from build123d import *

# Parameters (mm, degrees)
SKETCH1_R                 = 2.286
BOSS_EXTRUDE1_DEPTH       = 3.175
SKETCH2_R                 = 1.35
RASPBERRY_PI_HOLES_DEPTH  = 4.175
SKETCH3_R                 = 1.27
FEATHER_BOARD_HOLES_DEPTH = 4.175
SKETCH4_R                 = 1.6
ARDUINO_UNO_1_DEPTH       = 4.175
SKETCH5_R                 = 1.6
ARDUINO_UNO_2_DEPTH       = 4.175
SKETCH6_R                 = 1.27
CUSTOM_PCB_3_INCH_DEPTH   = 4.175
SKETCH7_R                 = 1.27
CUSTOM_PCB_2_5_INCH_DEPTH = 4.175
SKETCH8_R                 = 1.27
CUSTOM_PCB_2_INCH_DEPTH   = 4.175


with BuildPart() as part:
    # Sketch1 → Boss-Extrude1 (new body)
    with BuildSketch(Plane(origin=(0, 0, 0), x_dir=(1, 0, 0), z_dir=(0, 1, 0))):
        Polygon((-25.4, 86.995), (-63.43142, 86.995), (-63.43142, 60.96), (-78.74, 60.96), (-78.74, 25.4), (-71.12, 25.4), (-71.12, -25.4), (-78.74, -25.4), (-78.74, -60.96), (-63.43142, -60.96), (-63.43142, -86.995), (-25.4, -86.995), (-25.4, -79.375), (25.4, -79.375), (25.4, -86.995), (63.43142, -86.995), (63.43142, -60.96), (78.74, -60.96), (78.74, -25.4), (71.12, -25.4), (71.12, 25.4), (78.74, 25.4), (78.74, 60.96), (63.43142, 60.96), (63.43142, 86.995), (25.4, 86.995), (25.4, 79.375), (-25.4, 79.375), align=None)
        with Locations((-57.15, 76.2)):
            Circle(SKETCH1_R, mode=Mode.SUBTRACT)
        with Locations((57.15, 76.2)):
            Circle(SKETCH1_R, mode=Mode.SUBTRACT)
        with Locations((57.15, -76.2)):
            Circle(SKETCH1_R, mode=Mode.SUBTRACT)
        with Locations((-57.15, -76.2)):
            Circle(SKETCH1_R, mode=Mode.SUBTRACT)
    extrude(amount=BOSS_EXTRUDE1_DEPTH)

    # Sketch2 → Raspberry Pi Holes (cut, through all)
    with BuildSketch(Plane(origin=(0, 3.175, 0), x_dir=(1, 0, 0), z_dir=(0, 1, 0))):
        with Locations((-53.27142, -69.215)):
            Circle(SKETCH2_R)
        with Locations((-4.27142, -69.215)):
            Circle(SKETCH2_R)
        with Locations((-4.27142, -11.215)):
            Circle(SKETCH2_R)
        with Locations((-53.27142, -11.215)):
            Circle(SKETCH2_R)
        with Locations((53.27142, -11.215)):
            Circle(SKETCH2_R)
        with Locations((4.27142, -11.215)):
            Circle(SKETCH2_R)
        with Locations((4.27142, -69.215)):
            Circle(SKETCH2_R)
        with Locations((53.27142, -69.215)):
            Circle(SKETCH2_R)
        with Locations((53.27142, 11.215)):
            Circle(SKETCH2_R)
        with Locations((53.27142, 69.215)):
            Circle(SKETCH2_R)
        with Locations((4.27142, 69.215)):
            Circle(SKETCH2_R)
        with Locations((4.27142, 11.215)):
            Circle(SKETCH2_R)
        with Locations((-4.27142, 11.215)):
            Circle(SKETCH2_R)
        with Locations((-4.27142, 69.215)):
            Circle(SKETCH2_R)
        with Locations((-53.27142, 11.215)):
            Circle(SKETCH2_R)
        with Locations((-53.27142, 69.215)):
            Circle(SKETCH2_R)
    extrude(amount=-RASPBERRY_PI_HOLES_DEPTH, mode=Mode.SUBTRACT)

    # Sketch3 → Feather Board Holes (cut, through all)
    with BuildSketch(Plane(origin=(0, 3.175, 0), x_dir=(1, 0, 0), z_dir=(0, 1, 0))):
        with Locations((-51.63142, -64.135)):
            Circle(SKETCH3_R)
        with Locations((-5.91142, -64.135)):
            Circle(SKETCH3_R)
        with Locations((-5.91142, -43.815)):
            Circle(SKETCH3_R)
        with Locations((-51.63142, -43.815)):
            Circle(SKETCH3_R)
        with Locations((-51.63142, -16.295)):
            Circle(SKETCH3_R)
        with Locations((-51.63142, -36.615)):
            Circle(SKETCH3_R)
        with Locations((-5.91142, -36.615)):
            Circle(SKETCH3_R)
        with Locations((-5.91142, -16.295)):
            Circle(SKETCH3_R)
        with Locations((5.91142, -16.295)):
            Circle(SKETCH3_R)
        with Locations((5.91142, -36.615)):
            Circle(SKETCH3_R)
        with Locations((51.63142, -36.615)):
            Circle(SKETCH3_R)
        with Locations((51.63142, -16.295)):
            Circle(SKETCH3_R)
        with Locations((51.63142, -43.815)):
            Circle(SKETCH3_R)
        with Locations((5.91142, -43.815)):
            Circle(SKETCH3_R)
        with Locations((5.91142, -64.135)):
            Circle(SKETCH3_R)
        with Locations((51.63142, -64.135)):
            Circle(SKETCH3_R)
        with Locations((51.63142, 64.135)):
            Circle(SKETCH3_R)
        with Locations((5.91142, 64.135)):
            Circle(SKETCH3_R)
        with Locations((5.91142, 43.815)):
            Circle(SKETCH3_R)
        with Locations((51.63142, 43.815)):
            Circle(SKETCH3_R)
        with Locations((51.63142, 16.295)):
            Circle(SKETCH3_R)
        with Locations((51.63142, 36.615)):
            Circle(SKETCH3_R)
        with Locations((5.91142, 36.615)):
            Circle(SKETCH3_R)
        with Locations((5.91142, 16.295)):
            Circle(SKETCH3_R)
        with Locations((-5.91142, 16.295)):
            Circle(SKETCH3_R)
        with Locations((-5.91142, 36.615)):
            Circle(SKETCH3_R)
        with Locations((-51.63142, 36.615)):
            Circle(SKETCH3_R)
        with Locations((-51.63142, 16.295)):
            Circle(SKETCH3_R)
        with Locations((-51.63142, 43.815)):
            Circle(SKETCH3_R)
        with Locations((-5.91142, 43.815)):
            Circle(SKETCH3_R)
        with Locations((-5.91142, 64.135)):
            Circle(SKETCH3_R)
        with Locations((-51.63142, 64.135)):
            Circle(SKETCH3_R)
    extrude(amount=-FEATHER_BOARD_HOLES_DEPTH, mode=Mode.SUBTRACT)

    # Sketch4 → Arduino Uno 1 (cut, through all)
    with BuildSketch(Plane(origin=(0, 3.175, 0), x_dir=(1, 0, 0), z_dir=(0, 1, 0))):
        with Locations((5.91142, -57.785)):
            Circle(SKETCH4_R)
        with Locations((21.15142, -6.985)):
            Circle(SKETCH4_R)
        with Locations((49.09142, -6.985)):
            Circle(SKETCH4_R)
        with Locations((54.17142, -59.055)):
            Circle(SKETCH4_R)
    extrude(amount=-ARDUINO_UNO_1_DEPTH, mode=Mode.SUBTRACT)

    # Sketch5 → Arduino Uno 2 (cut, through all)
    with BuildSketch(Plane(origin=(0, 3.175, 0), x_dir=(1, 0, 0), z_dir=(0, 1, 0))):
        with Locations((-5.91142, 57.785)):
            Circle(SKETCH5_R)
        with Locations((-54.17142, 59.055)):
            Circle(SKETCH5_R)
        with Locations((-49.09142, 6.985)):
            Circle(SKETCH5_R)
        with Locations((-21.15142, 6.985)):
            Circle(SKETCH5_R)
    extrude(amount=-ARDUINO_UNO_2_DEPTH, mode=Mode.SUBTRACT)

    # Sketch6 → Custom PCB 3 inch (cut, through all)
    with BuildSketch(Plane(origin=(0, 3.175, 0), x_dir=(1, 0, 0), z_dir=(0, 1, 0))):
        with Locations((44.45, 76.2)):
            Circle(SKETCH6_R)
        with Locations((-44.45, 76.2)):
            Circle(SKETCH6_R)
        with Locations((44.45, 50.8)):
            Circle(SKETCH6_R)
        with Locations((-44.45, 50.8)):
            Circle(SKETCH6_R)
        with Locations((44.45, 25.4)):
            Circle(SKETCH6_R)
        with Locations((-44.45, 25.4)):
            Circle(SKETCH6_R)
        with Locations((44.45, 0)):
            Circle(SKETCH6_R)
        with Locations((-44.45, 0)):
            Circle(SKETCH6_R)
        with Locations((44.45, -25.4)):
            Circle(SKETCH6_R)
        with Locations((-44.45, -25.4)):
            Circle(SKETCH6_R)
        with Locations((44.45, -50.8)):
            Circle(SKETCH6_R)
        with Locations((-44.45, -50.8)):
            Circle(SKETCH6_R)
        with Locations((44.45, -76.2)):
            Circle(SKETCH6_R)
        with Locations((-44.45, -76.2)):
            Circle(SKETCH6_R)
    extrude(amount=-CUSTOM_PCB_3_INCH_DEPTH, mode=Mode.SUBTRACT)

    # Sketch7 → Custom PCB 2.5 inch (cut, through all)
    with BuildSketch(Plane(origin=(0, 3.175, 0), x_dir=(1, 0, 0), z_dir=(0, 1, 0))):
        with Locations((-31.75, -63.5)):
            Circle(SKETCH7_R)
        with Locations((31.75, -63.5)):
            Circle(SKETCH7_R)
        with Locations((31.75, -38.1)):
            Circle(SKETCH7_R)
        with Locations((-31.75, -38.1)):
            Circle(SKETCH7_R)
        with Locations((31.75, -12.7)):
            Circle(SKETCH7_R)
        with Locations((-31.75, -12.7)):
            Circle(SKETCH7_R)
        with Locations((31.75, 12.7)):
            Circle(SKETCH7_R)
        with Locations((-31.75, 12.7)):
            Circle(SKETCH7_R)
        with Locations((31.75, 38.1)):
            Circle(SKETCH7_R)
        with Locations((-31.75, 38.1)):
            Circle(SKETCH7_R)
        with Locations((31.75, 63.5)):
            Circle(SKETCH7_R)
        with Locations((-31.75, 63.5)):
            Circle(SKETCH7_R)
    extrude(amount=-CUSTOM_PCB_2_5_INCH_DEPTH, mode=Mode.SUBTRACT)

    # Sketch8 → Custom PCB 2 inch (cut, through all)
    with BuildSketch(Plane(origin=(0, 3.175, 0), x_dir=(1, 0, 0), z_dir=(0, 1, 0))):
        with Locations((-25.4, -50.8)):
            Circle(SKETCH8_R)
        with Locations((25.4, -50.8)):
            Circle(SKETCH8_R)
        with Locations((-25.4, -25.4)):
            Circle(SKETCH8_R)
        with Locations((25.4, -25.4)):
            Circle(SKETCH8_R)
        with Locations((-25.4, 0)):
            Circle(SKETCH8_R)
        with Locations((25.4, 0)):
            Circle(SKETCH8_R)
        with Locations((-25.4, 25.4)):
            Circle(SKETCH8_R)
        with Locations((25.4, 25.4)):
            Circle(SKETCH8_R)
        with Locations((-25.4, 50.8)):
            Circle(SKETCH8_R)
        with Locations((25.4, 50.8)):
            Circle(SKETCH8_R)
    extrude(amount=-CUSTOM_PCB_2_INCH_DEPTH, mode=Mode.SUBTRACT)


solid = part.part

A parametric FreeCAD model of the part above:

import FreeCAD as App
import Part
import Sketcher

V = App.Vector
Q = App.Units.Quantity


def add_polygon(sketch, points):
    """Adds a closed chain of lines whose ends are joined by coincident constraints."""
    first, n = sketch.GeometryCount, len(points)
    for a, b in zip(points, points[1:] + points[:1]):
        sketch.addGeometry(Part.LineSegment(App.Vector(*a, 0), App.Vector(*b, 0)), False)
    for i in range(n):
        sketch.addConstraint(Sketcher.Constraint("Coincident", first + i, 2, first + (i + 1) % n, 1))

doc = App.newDocument("Part")
body = doc.addObject("PartDesign::Body", "Body")

# Sketch on XZ plane
sketch1 = body.newObject("Sketcher::SketchObject", "Sketch")
sketch1.AttachmentSupport = (doc.getObject("XZ_Plane"), [""])
sketch1.MapMode = "FlatFace"
add_polygon(sketch1, [(-25.4, -86.995), (-63.43142, -86.995), (-63.43142, -60.96), (-78.74, -60.96), (-78.74, -25.4), (-71.12, -25.4), (-71.12, 25.4), (-78.74, 25.4), (-78.74, 60.96), (-63.43142, 60.96), (-63.43142, 86.995), (-25.4, 86.995), (-25.4, 79.375), (25.4, 79.375), (25.4, 86.995), (63.43142, 86.995), (63.43142, 60.96), (78.74, 60.96), (78.74, 25.4), (71.12, 25.4), (71.12, -25.4), (78.74, -25.4), (78.74, -60.96), (63.43142, -60.96), (63.43142, -86.995), (25.4, -86.995), (25.4, -79.375), (-25.4, -79.375)])  # lines 0-27
sketch1.addGeometry(Part.Circle(V(-57.15, 76.2, 0), V(0, 0, 1), 2.286), False)  # 28
sketch1.addGeometry(Part.Circle(V(57.15, 76.2, 0), V(0, 0, 1), 2.286), False)  # 29
sketch1.addGeometry(Part.Circle(V(-57.15, -76.2, 0), V(0, 0, 1), 2.286), False)  # 30
sketch1.addGeometry(Part.Circle(V(57.15, -76.2, 0), V(0, 0, 1), 2.286), False)  # 31
sketch1.addConstraint(Sketcher.Constraint("Horizontal", 0))
sketch1.addConstraint(Sketcher.Constraint("Vertical", 1))
sketch1.addConstraint(Sketcher.Constraint("Horizontal", 2))
sketch1.addConstraint(Sketcher.Constraint("Vertical", 3))
sketch1.addConstraint(Sketcher.Constraint("Horizontal", 4))
sketch1.addConstraint(Sketcher.Constraint("Vertical", 5))
sketch1.addConstraint(Sketcher.Constraint("Horizontal", 6))
sketch1.addConstraint(Sketcher.Constraint("Vertical", 7))
sketch1.addConstraint(Sketcher.Constraint("Horizontal", 8))
sketch1.addConstraint(Sketcher.Constraint("Vertical", 9))
sketch1.addConstraint(Sketcher.Constraint("Horizontal", 10))
sketch1.addConstraint(Sketcher.Constraint("Vertical", 11))
sketch1.addConstraint(Sketcher.Constraint("Horizontal", 12))
sketch1.addConstraint(Sketcher.Constraint("Vertical", 13))
sketch1.addConstraint(Sketcher.Constraint("Horizontal", 14))
sketch1.addConstraint(Sketcher.Constraint("Vertical", 15))
sketch1.addConstraint(Sketcher.Constraint("Horizontal", 16))
sketch1.addConstraint(Sketcher.Constraint("Vertical", 17))
sketch1.addConstraint(Sketcher.Constraint("Horizontal", 18))
sketch1.addConstraint(Sketcher.Constraint("Vertical", 19))
sketch1.addConstraint(Sketcher.Constraint("Horizontal", 20))
sketch1.addConstraint(Sketcher.Constraint("Vertical", 21))
sketch1.addConstraint(Sketcher.Constraint("Horizontal", 22))
sketch1.addConstraint(Sketcher.Constraint("Vertical", 23))
sketch1.addConstraint(Sketcher.Constraint("Horizontal", 24))
sketch1.addConstraint(Sketcher.Constraint("Vertical", 25))
sketch1.addConstraint(Sketcher.Constraint("Horizontal", 26))
sketch1.addConstraint(Sketcher.Constraint("Vertical", 27))
sketch1.addConstraint(Sketcher.Constraint("Equal", 28, 29))
sketch1.addConstraint(Sketcher.Constraint("Equal", 29, 30))
sketch1.addConstraint(Sketcher.Constraint("Equal", 30, 31))
sketch1.addConstraint(Sketcher.Constraint("Symmetric", 29, 3, 30, 3, -1, 1))
sketch1.addConstraint(Sketcher.Constraint("Symmetric", 28, 3, 31, 3, -1, 1))
sketch1.addConstraint(Sketcher.Constraint("Symmetric", 0, 2, 14, 2, -1, 1))
sketch1.addConstraint(Sketcher.Constraint("Symmetric", 2, 2, 16, 2, -1, 1))
sketch1.addConstraint(Sketcher.Constraint("Symmetric", 4, 2, 18, 2, -1, 1))
sketch1.addConstraint(Sketcher.Constraint("Symmetric", 6, 2, 20, 2, -1, 1))
sketch1.addConstraint(Sketcher.Constraint("Symmetric", 8, 2, 22, 2, -1, 1))
sketch1.addConstraint(Sketcher.Constraint("Symmetric", 10, 2, 24, 2, -1, 1))
sketch1.addConstraint(Sketcher.Constraint("Symmetric", 12, 2, 26, 2, -1, 1))
sketch1.addConstraint(Sketcher.Constraint("Symmetric", 28, 3, 29, 3, -2))
sketch1.addConstraint(Sketcher.Constraint("Symmetric", 10, 2, 13, 2, -2))
sketch1.addConstraint(Sketcher.Constraint("Symmetric", 8, 2, 15, 2, -2))
sketch1.addConstraint(Sketcher.Constraint("Symmetric", 6, 2, 17, 2, -2))
sketch1.addConstraint(Sketcher.Constraint("Equal", 26, 5))
sketch1.addConstraint(Sketcher.Constraint("Equal", 20, 11))
sketch1.addConstraint(Sketcher.Constraint("Diameter", 28, Q("0.18 in")))
sketch1.addConstraint(Sketcher.Constraint("DistanceX", 12, 1, 12, 2, Q("2 in")))
sketch1.addConstraint(Sketcher.Constraint("DistanceX", 4, 1, 4, 2, Q("0.3 in")))
sketch1.addConstraint(Sketcher.Constraint("DistanceY", 3, 1, 3, 2, Q("1.4 in")))
sketch1.addConstraint(Sketcher.Constraint("DistanceY", -1, 1, 28, 3, Q("3 in")))
sketch1.addConstraint(Sketcher.Constraint("DistanceX", 2, 2, -1, 1, Q("3.1 in")))
sketch1.addConstraint(Sketcher.Constraint("DistanceX", 28, 3, 29, 3, Q("4.5 in")))
sketch1.addConstraint(Sketcher.Constraint("DistanceY", 1, 1, 1, 2, Q("1.025 in")))
sketch1.addConstraint(Sketcher.Constraint("DistanceX", 0, 2, 0, 1, Q("1.4973 in")))
pad1 = body.newObject("PartDesign::Pad", "Pad")
pad1.Profile = sketch1
pad1.Length = Q("0.125 in")
pad1.Reversed = True

# Sketch on XZ plane
sketch2 = body.newObject("Sketcher::SketchObject", "Sketch001")
sketch2.AttachmentSupport = (doc.getObject("XZ_Plane"), [""])
sketch2.MapMode = "FlatFace"
sketch2.AttachmentOffset = App.Placement(V(0, 0, -0.125 * 25.4), App.Rotation())
sketch2.addGeometry(Part.Circle(V(-53.27142, 69.215, 0), V(0, 0, 1), 1.35), False)
sketch2.addGeometry(Part.Circle(V(-4.27142, 69.215, 0), V(0, 0, 1), 1.35), False)
sketch2.addGeometry(Part.Circle(V(-4.27142, 11.215, 0), V(0, 0, 1), 1.35), False)
sketch2.addGeometry(Part.Circle(V(-53.27142, 11.215, 0), V(0, 0, 1), 1.35), False)
sketch2.addGeometry(Part.Circle(V(53.27142, 11.215, 0), V(0, 0, 1), 1.35), False)
sketch2.addGeometry(Part.Circle(V(4.27142, 11.215, 0), V(0, 0, 1), 1.35), False)
sketch2.addGeometry(Part.Circle(V(4.27142, 69.215, 0), V(0, 0, 1), 1.35), False)
sketch2.addGeometry(Part.Circle(V(53.27142, 69.215, 0), V(0, 0, 1), 1.35), False)
sketch2.addGeometry(Part.Circle(V(53.27142, -11.215, 0), V(0, 0, 1), 1.35), False)
sketch2.addGeometry(Part.Circle(V(53.27142, -69.215, 0), V(0, 0, 1), 1.35), False)
sketch2.addGeometry(Part.Circle(V(4.27142, -69.215, 0), V(0, 0, 1), 1.35), False)
sketch2.addGeometry(Part.Circle(V(4.27142, -11.215, 0), V(0, 0, 1), 1.35), False)
sketch2.addGeometry(Part.Circle(V(-4.27142, -11.215, 0), V(0, 0, 1), 1.35), False)
sketch2.addGeometry(Part.Circle(V(-4.27142, -69.215, 0), V(0, 0, 1), 1.35), False)
sketch2.addGeometry(Part.Circle(V(-53.27142, -11.215, 0), V(0, 0, 1), 1.35), False)
sketch2.addGeometry(Part.Circle(V(-53.27142, -69.215, 0), V(0, 0, 1), 1.35), False)
sketch2.addConstraint(Sketcher.Constraint("Equal", 0, 1))
sketch2.addConstraint(Sketcher.Constraint("Equal", 1, 2))
sketch2.addConstraint(Sketcher.Constraint("Equal", 2, 3))
sketch2.addConstraint(Sketcher.Constraint("Equal", 3, 4))
sketch2.addConstraint(Sketcher.Constraint("Equal", 4, 5))
sketch2.addConstraint(Sketcher.Constraint("Equal", 5, 6))
sketch2.addConstraint(Sketcher.Constraint("Equal", 6, 7))
sketch2.addConstraint(Sketcher.Constraint("Equal", 7, 8))
sketch2.addConstraint(Sketcher.Constraint("Equal", 8, 9))
sketch2.addConstraint(Sketcher.Constraint("Equal", 9, 10))
sketch2.addConstraint(Sketcher.Constraint("Equal", 10, 11))
sketch2.addConstraint(Sketcher.Constraint("Equal", 11, 12))
sketch2.addConstraint(Sketcher.Constraint("Equal", 12, 13))
sketch2.addConstraint(Sketcher.Constraint("Equal", 13, 14))
sketch2.addConstraint(Sketcher.Constraint("Equal", 14, 15))
sketch2.addConstraint(Sketcher.Constraint("Symmetric", 3, 3, 8, 3, -1, 1))
sketch2.addConstraint(Sketcher.Constraint("Symmetric", 0, 3, 9, 3, -1, 1))
sketch2.addConstraint(Sketcher.Constraint("Symmetric", 1, 3, 10, 3, -1, 1))
sketch2.addConstraint(Sketcher.Constraint("Symmetric", 2, 3, 11, 3, -1, 1))
sketch2.addConstraint(Sketcher.Constraint("Symmetric", 5, 3, 12, 3, -1, 1))
sketch2.addConstraint(Sketcher.Constraint("Symmetric", 6, 3, 13, 3, -1, 1))
sketch2.addConstraint(Sketcher.Constraint("Symmetric", 4, 3, 14, 3, -1, 1))
sketch2.addConstraint(Sketcher.Constraint("Symmetric", 7, 3, 15, 3, -1, 1))
sketch2.addConstraint(Sketcher.Constraint("Symmetric", 3, 3, 4, 3, -2))
sketch2.addConstraint(Sketcher.Constraint("Symmetric", 2, 3, 5, 3, -2))
sketch2.addConstraint(Sketcher.Constraint("Symmetric", 1, 3, 6, 3, -2))
sketch2.addConstraint(Sketcher.Constraint("Symmetric", 0, 3, 7, 3, -2))
sketch2.addConstraint(Sketcher.Constraint("Horizontal", 0, 3, 1, 3))
sketch2.addConstraint(Sketcher.Constraint("Horizontal", 2, 3, 3, 3))
sketch2.addConstraint(Sketcher.Constraint("Vertical", 1, 3, 2, 3))
sketch2.addConstraint(Sketcher.Constraint("Vertical", 0, 3, 3, 3))
sketch2.addConstraint(Sketcher.Constraint("Diameter", 0, Q("2.7 mm")))
sketch2.addConstraint(Sketcher.Constraint("DistanceY", -1, 1, 0, 3, Q("2.725 in")))
sketch2.addConstraint(Sketcher.Constraint("DistanceX", 0, 3, -1, 1, Q("2.0973 in")))
sketch2.addConstraint(Sketcher.Constraint("DistanceY", -1, 1, 2, 3, Q("11.215 mm")))
sketch2.addConstraint(Sketcher.Constraint("DistanceX", 0, 3, 1, 3, Q("49 mm")))
pocket1 = body.newObject("PartDesign::Pocket", "Pocket")
pocket1.Profile = sketch2
pocket1.Type = "ThroughAll"
pocket1.Reversed = True

# Sketch on XZ plane
sketch3 = body.newObject("Sketcher::SketchObject", "Sketch002")
sketch3.AttachmentSupport = (doc.getObject("XZ_Plane"), [""])
sketch3.MapMode = "FlatFace"
sketch3.AttachmentOffset = App.Placement(V(0, 0, -0.125 * 25.4), App.Rotation())
sketch3.addGeometry(Part.Circle(V(-51.63142, 64.135, 0), V(0, 0, 1), 1.27), False)
sketch3.addGeometry(Part.Circle(V(-5.91142, 64.135, 0), V(0, 0, 1), 1.27), False)
sketch3.addGeometry(Part.Circle(V(-5.91142, 43.815, 0), V(0, 0, 1), 1.27), False)
sketch3.addGeometry(Part.Circle(V(-51.63142, 43.815, 0), V(0, 0, 1), 1.27), False)
sketch3.addGeometry(Part.Circle(V(-51.63142, 16.295, 0), V(0, 0, 1), 1.27), False)
sketch3.addGeometry(Part.Circle(V(-51.63142, 36.615, 0), V(0, 0, 1), 1.27), False)
sketch3.addGeometry(Part.Circle(V(-5.91142, 36.615, 0), V(0, 0, 1), 1.27), False)
sketch3.addGeometry(Part.Circle(V(-5.91142, 16.295, 0), V(0, 0, 1), 1.27), False)
sketch3.addGeometry(Part.Circle(V(5.91142, 16.295, 0), V(0, 0, 1), 1.27), False)
sketch3.addGeometry(Part.Circle(V(5.91142, 36.615, 0), V(0, 0, 1), 1.27), False)
sketch3.addGeometry(Part.Circle(V(51.63142, 36.615, 0), V(0, 0, 1), 1.27), False)
sketch3.addGeometry(Part.Circle(V(51.63142, 16.295, 0), V(0, 0, 1), 1.27), False)
sketch3.addGeometry(Part.Circle(V(51.63142, 43.815, 0), V(0, 0, 1), 1.27), False)
sketch3.addGeometry(Part.Circle(V(5.91142, 43.815, 0), V(0, 0, 1), 1.27), False)
sketch3.addGeometry(Part.Circle(V(5.91142, 64.135, 0), V(0, 0, 1), 1.27), False)
sketch3.addGeometry(Part.Circle(V(51.63142, 64.135, 0), V(0, 0, 1), 1.27), False)
sketch3.addGeometry(Part.Circle(V(51.63142, -64.135, 0), V(0, 0, 1), 1.27), False)
sketch3.addGeometry(Part.Circle(V(5.91142, -64.135, 0), V(0, 0, 1), 1.27), False)
sketch3.addGeometry(Part.Circle(V(5.91142, -43.815, 0), V(0, 0, 1), 1.27), False)
sketch3.addGeometry(Part.Circle(V(51.63142, -43.815, 0), V(0, 0, 1), 1.27), False)
sketch3.addGeometry(Part.Circle(V(51.63142, -16.295, 0), V(0, 0, 1), 1.27), False)
sketch3.addGeometry(Part.Circle(V(51.63142, -36.615, 0), V(0, 0, 1), 1.27), False)
sketch3.addGeometry(Part.Circle(V(5.91142, -36.615, 0), V(0, 0, 1), 1.27), False)
sketch3.addGeometry(Part.Circle(V(5.91142, -16.295, 0), V(0, 0, 1), 1.27), False)
sketch3.addGeometry(Part.Circle(V(-5.91142, -16.295, 0), V(0, 0, 1), 1.27), False)
sketch3.addGeometry(Part.Circle(V(-5.91142, -36.615, 0), V(0, 0, 1), 1.27), False)
sketch3.addGeometry(Part.Circle(V(-51.63142, -36.615, 0), V(0, 0, 1), 1.27), False)
sketch3.addGeometry(Part.Circle(V(-51.63142, -16.295, 0), V(0, 0, 1), 1.27), False)
sketch3.addGeometry(Part.Circle(V(-51.63142, -43.815, 0), V(0, 0, 1), 1.27), False)
sketch3.addGeometry(Part.Circle(V(-5.91142, -43.815, 0), V(0, 0, 1), 1.27), False)
sketch3.addGeometry(Part.Circle(V(-5.91142, -64.135, 0), V(0, 0, 1), 1.27), False)
sketch3.addGeometry(Part.Circle(V(-51.63142, -64.135, 0), V(0, 0, 1), 1.27), False)
sketch3.addConstraint(Sketcher.Constraint("Equal", 0, 1))
sketch3.addConstraint(Sketcher.Constraint("Equal", 1, 2))
sketch3.addConstraint(Sketcher.Constraint("Equal", 2, 3))
sketch3.addConstraint(Sketcher.Constraint("Equal", 3, 4))
sketch3.addConstraint(Sketcher.Constraint("Equal", 4, 5))
sketch3.addConstraint(Sketcher.Constraint("Equal", 5, 6))
sketch3.addConstraint(Sketcher.Constraint("Equal", 6, 7))
sketch3.addConstraint(Sketcher.Constraint("Equal", 7, 8))
sketch3.addConstraint(Sketcher.Constraint("Equal", 8, 9))
sketch3.addConstraint(Sketcher.Constraint("Equal", 9, 10))
sketch3.addConstraint(Sketcher.Constraint("Equal", 10, 11))
sketch3.addConstraint(Sketcher.Constraint("Equal", 11, 12))
sketch3.addConstraint(Sketcher.Constraint("Equal", 12, 13))
sketch3.addConstraint(Sketcher.Constraint("Equal", 13, 14))
sketch3.addConstraint(Sketcher.Constraint("Equal", 14, 15))
sketch3.addConstraint(Sketcher.Constraint("Equal", 15, 16))
sketch3.addConstraint(Sketcher.Constraint("Equal", 16, 17))
sketch3.addConstraint(Sketcher.Constraint("Equal", 17, 18))
sketch3.addConstraint(Sketcher.Constraint("Equal", 18, 19))
sketch3.addConstraint(Sketcher.Constraint("Equal", 19, 20))
sketch3.addConstraint(Sketcher.Constraint("Equal", 20, 21))
sketch3.addConstraint(Sketcher.Constraint("Equal", 21, 22))
sketch3.addConstraint(Sketcher.Constraint("Equal", 22, 23))
sketch3.addConstraint(Sketcher.Constraint("Equal", 23, 24))
sketch3.addConstraint(Sketcher.Constraint("Equal", 24, 25))
sketch3.addConstraint(Sketcher.Constraint("Equal", 25, 26))
sketch3.addConstraint(Sketcher.Constraint("Equal", 26, 27))
sketch3.addConstraint(Sketcher.Constraint("Equal", 27, 28))
sketch3.addConstraint(Sketcher.Constraint("Equal", 28, 29))
sketch3.addConstraint(Sketcher.Constraint("Equal", 29, 30))
sketch3.addConstraint(Sketcher.Constraint("Equal", 30, 31))
sketch3.addConstraint(Sketcher.Constraint("Symmetric", 0, 3, 16, 3, -1, 1))
sketch3.addConstraint(Sketcher.Constraint("Symmetric", 1, 3, 17, 3, -1, 1))
sketch3.addConstraint(Sketcher.Constraint("Symmetric", 2, 3, 18, 3, -1, 1))
sketch3.addConstraint(Sketcher.Constraint("Symmetric", 3, 3, 19, 3, -1, 1))
sketch3.addConstraint(Sketcher.Constraint("Symmetric", 4, 3, 20, 3, -1, 1))
sketch3.addConstraint(Sketcher.Constraint("Symmetric", 5, 3, 21, 3, -1, 1))
sketch3.addConstraint(Sketcher.Constraint("Symmetric", 6, 3, 22, 3, -1, 1))
sketch3.addConstraint(Sketcher.Constraint("Symmetric", 7, 3, 23, 3, -1, 1))
sketch3.addConstraint(Sketcher.Constraint("Symmetric", 8, 3, 24, 3, -1, 1))
sketch3.addConstraint(Sketcher.Constraint("Symmetric", 9, 3, 25, 3, -1, 1))
sketch3.addConstraint(Sketcher.Constraint("Symmetric", 10, 3, 26, 3, -1, 1))
sketch3.addConstraint(Sketcher.Constraint("Symmetric", 11, 3, 27, 3, -1, 1))
sketch3.addConstraint(Sketcher.Constraint("Symmetric", 12, 3, 28, 3, -1, 1))
sketch3.addConstraint(Sketcher.Constraint("Symmetric", 13, 3, 29, 3, -1, 1))
sketch3.addConstraint(Sketcher.Constraint("Symmetric", 14, 3, 30, 3, -1, 1))
sketch3.addConstraint(Sketcher.Constraint("Symmetric", 15, 3, 31, 3, -1, 1))
sketch3.addConstraint(Sketcher.Constraint("Symmetric", 7, 3, 8, 3, -2))
sketch3.addConstraint(Sketcher.Constraint("Symmetric", 6, 3, 9, 3, -2))
sketch3.addConstraint(Sketcher.Constraint("Symmetric", 5, 3, 10, 3, -2))
sketch3.addConstraint(Sketcher.Constraint("Symmetric", 4, 3, 11, 3, -2))
sketch3.addConstraint(Sketcher.Constraint("Symmetric", 3, 3, 12, 3, -2))
sketch3.addConstraint(Sketcher.Constraint("Symmetric", 2, 3, 13, 3, -2))
sketch3.addConstraint(Sketcher.Constraint("Symmetric", 1, 3, 14, 3, -2))
sketch3.addConstraint(Sketcher.Constraint("Symmetric", 0, 3, 15, 3, -2))
sketch3.addConstraint(Sketcher.Constraint("Horizontal", 0, 3, 1, 3))
sketch3.addConstraint(Sketcher.Constraint("Horizontal", 2, 3, 3, 3))
sketch3.addConstraint(Sketcher.Constraint("Horizontal", 5, 3, 6, 3))
sketch3.addConstraint(Sketcher.Constraint("Horizontal", 4, 3, 7, 3))
sketch3.addConstraint(Sketcher.Constraint("Vertical", 1, 3, 2, 3))
sketch3.addConstraint(Sketcher.Constraint("Vertical", 0, 3, 3, 3))
sketch3.addConstraint(Sketcher.Constraint("Vertical", 3, 3, 4, 3))
sketch3.addConstraint(Sketcher.Constraint("Vertical", 4, 3, 5, 3))
sketch3.addConstraint(Sketcher.Constraint("Vertical", 2, 3, 6, 3))
sketch3.addConstraint(Sketcher.Constraint("Vertical", 6, 3, 7, 3))
sketch3.addConstraint(Sketcher.Constraint("Diameter", 0, Q("0.1 in")))
sketch3.addConstraint(Sketcher.Constraint("DistanceX", 0, 3, 1, 3, Q("1.8 in")))
sketch3.addConstraint(Sketcher.Constraint("DistanceY", 2, 3, 1, 3, Q("0.8 in")))
sketch3.addConstraint(Sketcher.Constraint("DistanceY", 4, 3, 5, 3, Q("0.8 in")))
sketch3.addConstraint(Sketcher.Constraint("DistanceY", 16, 3, 12, 3, Q("4.25 in")))
sketch3.addConstraint(Sketcher.Constraint("DistanceY", -1, 1, 4, 3, Q("16.295 mm")))
sketch3.addConstraint(Sketcher.Constraint("DistanceX", 0, 3, -1, 1, Q("51.63142 mm")))
pocket2 = body.newObject("PartDesign::Pocket", "Pocket001")
pocket2.Profile = sketch3
pocket2.Type = "ThroughAll"
pocket2.Reversed = True

# Sketch on XZ plane
sketch4 = body.newObject("Sketcher::SketchObject", "Sketch003")
sketch4.AttachmentSupport = (doc.getObject("XZ_Plane"), [""])
sketch4.MapMode = "FlatFace"
sketch4.AttachmentOffset = App.Placement(V(0, 0, -0.125 * 25.4), App.Rotation())
sketch4.addGeometry(Part.Circle(V(5.91142, 57.785, 0), V(0, 0, 1), 1.6), False)
sketch4.addGeometry(Part.Circle(V(21.15142, 6.985, 0), V(0, 0, 1), 1.6), False)
sketch4.addGeometry(Part.Circle(V(49.09142, 6.985, 0), V(0, 0, 1), 1.6), False)
sketch4.addGeometry(Part.Circle(V(54.17142, 59.055, 0), V(0, 0, 1), 1.6), False)
sketch4.addConstraint(Sketcher.Constraint("Equal", 0, 1))
sketch4.addConstraint(Sketcher.Constraint("Equal", 1, 2))
sketch4.addConstraint(Sketcher.Constraint("Equal", 2, 3))
sketch4.addConstraint(Sketcher.Constraint("Horizontal", 1, 3, 2, 3))
sketch4.addConstraint(Sketcher.Constraint("DistanceY", 1, 3, 0, 3, Q("2 in")))
sketch4.addConstraint(Sketcher.Constraint("DistanceX", 0, 3, 1, 3, Q("0.6 in")))
sketch4.addConstraint(Sketcher.Constraint("DistanceX", 1, 3, 2, 3, Q("1.1 in")))
sketch4.addConstraint(Sketcher.Constraint("DistanceX", 0, 3, 3, 3, Q("1.9 in")))
sketch4.addConstraint(Sketcher.Constraint("Diameter", 0, Q("3.2 mm")))
sketch4.addConstraint(Sketcher.Constraint("DistanceY", 0, 3, 3, 3, Q("0.05 in")))
sketch4.addConstraint(Sketcher.Constraint("DistanceY", -1, 1, 0, 3, Q("2.275 in")))
sketch4.addConstraint(Sketcher.Constraint("DistanceX", -1, 1, 0, 3, Q("5.91142 mm")))
pocket3 = body.newObject("PartDesign::Pocket", "Pocket002")
pocket3.Profile = sketch4
pocket3.Type = "ThroughAll"
pocket3.Reversed = True

# Sketch on XZ plane
sketch5 = body.newObject("Sketcher::SketchObject", "Sketch004")
sketch5.AttachmentSupport = (doc.getObject("XZ_Plane"), [""])
sketch5.MapMode = "FlatFace"
sketch5.AttachmentOffset = App.Placement(V(0, 0, -0.125 * 25.4), App.Rotation())
sketch5.addGeometry(Part.Circle(V(-5.91142, -57.785, 0), V(0, 0, 1), 1.6), False)
sketch5.addGeometry(Part.Circle(V(-54.17142, -59.055, 0), V(0, 0, 1), 1.6), False)
sketch5.addGeometry(Part.Circle(V(-49.09142, -6.985, 0), V(0, 0, 1), 1.6), False)
sketch5.addGeometry(Part.Circle(V(-21.15142, -6.985, 0), V(0, 0, 1), 1.6), False)
sketch5.addConstraint(Sketcher.Constraint("Equal", 0, 1))
sketch5.addConstraint(Sketcher.Constraint("Equal", 1, 2))
sketch5.addConstraint(Sketcher.Constraint("Equal", 2, 3))
sketch5.addConstraint(Sketcher.Constraint("Horizontal", 2, 3, 3, 3))
sketch5.addConstraint(Sketcher.Constraint("DistanceY", 0, 3, 2, 3, Q("2 in")))
sketch5.addConstraint(Sketcher.Constraint("DistanceX", 1, 3, 0, 3, Q("1.9 in")))
sketch5.addConstraint(Sketcher.Constraint("DistanceX", 1, 3, 2, 3, Q("0.2 in")))
sketch5.addConstraint(Sketcher.Constraint("DistanceX", 2, 3, 3, 3, Q("1.1 in")))
sketch5.addConstraint(Sketcher.Constraint("Diameter", 0, Q("3.2 mm")))
sketch5.addConstraint(Sketcher.Constraint("DistanceY", 1, 3, 0, 3, Q("0.05 in")))
sketch5.addConstraint(Sketcher.Constraint("DistanceY", 0, 3, -1, 1, Q("2.275 in")))
sketch5.addConstraint(Sketcher.Constraint("DistanceX", 0, 3, -1, 1, Q("5.91142 mm")))
pocket4 = body.newObject("PartDesign::Pocket", "Pocket003")
pocket4.Profile = sketch5
pocket4.Type = "ThroughAll"
pocket4.Reversed = True

# Sketch on XZ plane
sketch6 = body.newObject("Sketcher::SketchObject", "Sketch005")
sketch6.AttachmentSupport = (doc.getObject("XZ_Plane"), [""])
sketch6.MapMode = "FlatFace"
sketch6.AttachmentOffset = App.Placement(V(0, 0, -0.125 * 25.4), App.Rotation())
sketch6.addGeometry(Part.Circle(V(44.45, -76.2, 0), V(0, 0, 1), 1.27), False)
sketch6.addGeometry(Part.Circle(V(-44.45, -76.2, 0), V(0, 0, 1), 1.27), False)
sketch6.addGeometry(Part.Circle(V(44.45, -50.8, 0), V(0, 0, 1), 1.27), False)
sketch6.addGeometry(Part.Circle(V(-44.45, -50.8, 0), V(0, 0, 1), 1.27), False)
sketch6.addGeometry(Part.Circle(V(44.45, -25.4, 0), V(0, 0, 1), 1.27), False)
sketch6.addGeometry(Part.Circle(V(-44.45, -25.4, 0), V(0, 0, 1), 1.27), False)
sketch6.addGeometry(Part.Circle(V(44.45, 0, 0), V(0, 0, 1), 1.27), False)
sketch6.addGeometry(Part.Circle(V(-44.45, 0, 0), V(0, 0, 1), 1.27), False)
sketch6.addGeometry(Part.Circle(V(44.45, 25.4, 0), V(0, 0, 1), 1.27), False)
sketch6.addGeometry(Part.Circle(V(-44.45, 25.4, 0), V(0, 0, 1), 1.27), False)
sketch6.addGeometry(Part.Circle(V(44.45, 50.8, 0), V(0, 0, 1), 1.27), False)
sketch6.addGeometry(Part.Circle(V(-44.45, 50.8, 0), V(0, 0, 1), 1.27), False)
sketch6.addGeometry(Part.Circle(V(44.45, 76.2, 0), V(0, 0, 1), 1.27), False)
sketch6.addGeometry(Part.Circle(V(-44.45, 76.2, 0), V(0, 0, 1), 1.27), False)
sketch6.addConstraint(Sketcher.Constraint("Equal", 0, 1))
sketch6.addConstraint(Sketcher.Constraint("Equal", 1, 2))
sketch6.addConstraint(Sketcher.Constraint("Equal", 2, 3))
sketch6.addConstraint(Sketcher.Constraint("Equal", 3, 4))
sketch6.addConstraint(Sketcher.Constraint("Equal", 4, 5))
sketch6.addConstraint(Sketcher.Constraint("Equal", 5, 6))
sketch6.addConstraint(Sketcher.Constraint("Equal", 6, 7))
sketch6.addConstraint(Sketcher.Constraint("Equal", 7, 8))
sketch6.addConstraint(Sketcher.Constraint("Equal", 8, 9))
sketch6.addConstraint(Sketcher.Constraint("Equal", 9, 10))
sketch6.addConstraint(Sketcher.Constraint("Equal", 10, 11))
sketch6.addConstraint(Sketcher.Constraint("Equal", 11, 12))
sketch6.addConstraint(Sketcher.Constraint("Equal", 12, 13))
sketch6.addConstraint(Sketcher.Constraint("Symmetric", 6, 3, 7, 3, -1, 1))
sketch6.addConstraint(Sketcher.Constraint("Symmetric", 5, 3, 8, 3, -1, 1))
sketch6.addConstraint(Sketcher.Constraint("Symmetric", 4, 3, 9, 3, -1, 1))
sketch6.addConstraint(Sketcher.Constraint("Symmetric", 3, 3, 10, 3, -1, 1))
sketch6.addConstraint(Sketcher.Constraint("Symmetric", 2, 3, 11, 3, -1, 1))
sketch6.addConstraint(Sketcher.Constraint("Symmetric", 1, 3, 12, 3, -1, 1))
sketch6.addConstraint(Sketcher.Constraint("Symmetric", 0, 3, 13, 3, -1, 1))
sketch6.addConstraint(Sketcher.Constraint("Symmetric", 0, 3, 1, 3, -2))
sketch6.addConstraint(Sketcher.Constraint("Symmetric", 2, 3, 3, 3, -2))
sketch6.addConstraint(Sketcher.Constraint("Symmetric", 4, 3, 5, 3, -2))
sketch6.addConstraint(Sketcher.Constraint("PointOnObject", 6, 3, -1))
sketch6.addConstraint(Sketcher.Constraint("Vertical", 0, 3, 2, 3))
sketch6.addConstraint(Sketcher.Constraint("Vertical", 2, 3, 4, 3))
sketch6.addConstraint(Sketcher.Constraint("Vertical", 4, 3, 6, 3))
sketch6.addConstraint(Sketcher.Constraint("Diameter", 0, Q("0.1 in")))
sketch6.addConstraint(Sketcher.Constraint("DistanceY", 0, 3, -1, 1, Q("3 in")))
sketch6.addConstraint(Sketcher.Constraint("DistanceY", 2, 3, -1, 1, Q("2 in")))
sketch6.addConstraint(Sketcher.Constraint("DistanceY", 4, 3, -1, 1, Q("1 in")))
sketch6.addConstraint(Sketcher.Constraint("DistanceX", 1, 3, 0, 3, Q("3.5 in")))
pocket5 = body.newObject("PartDesign::Pocket", "Pocket004")
pocket5.Profile = sketch6
pocket5.Type = "ThroughAll"
pocket5.Reversed = True

# Sketch on XZ plane
sketch7 = body.newObject("Sketcher::SketchObject", "Sketch006")
sketch7.AttachmentSupport = (doc.getObject("XZ_Plane"), [""])
sketch7.MapMode = "FlatFace"
sketch7.AttachmentOffset = App.Placement(V(0, 0, -0.125 * 25.4), App.Rotation())
sketch7.addGeometry(Part.Circle(V(-31.75, 63.5, 0), V(0, 0, 1), 1.27), False)
sketch7.addGeometry(Part.Circle(V(31.75, 63.5, 0), V(0, 0, 1), 1.27), False)
sketch7.addGeometry(Part.Circle(V(31.75, 38.1, 0), V(0, 0, 1), 1.27), False)
sketch7.addGeometry(Part.Circle(V(-31.75, 38.1, 0), V(0, 0, 1), 1.27), False)
sketch7.addGeometry(Part.Circle(V(31.75, 12.7, 0), V(0, 0, 1), 1.27), False)
sketch7.addGeometry(Part.Circle(V(-31.75, 12.7, 0), V(0, 0, 1), 1.27), False)
sketch7.addGeometry(Part.Circle(V(31.75, -12.7, 0), V(0, 0, 1), 1.27), False)
sketch7.addGeometry(Part.Circle(V(-31.75, -12.7, 0), V(0, 0, 1), 1.27), False)
sketch7.addGeometry(Part.Circle(V(31.75, -38.1, 0), V(0, 0, 1), 1.27), False)
sketch7.addGeometry(Part.Circle(V(-31.75, -38.1, 0), V(0, 0, 1), 1.27), False)
sketch7.addGeometry(Part.Circle(V(31.75, -63.5, 0), V(0, 0, 1), 1.27), False)
sketch7.addGeometry(Part.Circle(V(-31.75, -63.5, 0), V(0, 0, 1), 1.27), False)
sketch7.addConstraint(Sketcher.Constraint("Equal", 0, 1))
sketch7.addConstraint(Sketcher.Constraint("Equal", 1, 2))
sketch7.addConstraint(Sketcher.Constraint("Equal", 2, 3))
sketch7.addConstraint(Sketcher.Constraint("Equal", 3, 4))
sketch7.addConstraint(Sketcher.Constraint("Equal", 4, 5))
sketch7.addConstraint(Sketcher.Constraint("Equal", 5, 6))
sketch7.addConstraint(Sketcher.Constraint("Equal", 6, 7))
sketch7.addConstraint(Sketcher.Constraint("Equal", 7, 8))
sketch7.addConstraint(Sketcher.Constraint("Equal", 8, 9))
sketch7.addConstraint(Sketcher.Constraint("Equal", 9, 10))
sketch7.addConstraint(Sketcher.Constraint("Equal", 10, 11))
sketch7.addConstraint(Sketcher.Constraint("Symmetric", 5, 3, 6, 3, -1, 1))
sketch7.addConstraint(Sketcher.Constraint("Symmetric", 4, 3, 7, 3, -1, 1))
sketch7.addConstraint(Sketcher.Constraint("Symmetric", 3, 3, 8, 3, -1, 1))
sketch7.addConstraint(Sketcher.Constraint("Symmetric", 2, 3, 9, 3, -1, 1))
sketch7.addConstraint(Sketcher.Constraint("Symmetric", 0, 3, 10, 3, -1, 1))
sketch7.addConstraint(Sketcher.Constraint("Symmetric", 1, 3, 11, 3, -1, 1))
sketch7.addConstraint(Sketcher.Constraint("Symmetric", 0, 3, 1, 3, -2))
sketch7.addConstraint(Sketcher.Constraint("Symmetric", 2, 3, 3, 3, -2))
sketch7.addConstraint(Sketcher.Constraint("Symmetric", 4, 3, 5, 3, -2))
sketch7.addConstraint(Sketcher.Constraint("Vertical", 1, 3, 2, 3))
sketch7.addConstraint(Sketcher.Constraint("Vertical", 2, 3, 4, 3))
sketch7.addConstraint(Sketcher.Constraint("Diameter", 0, Q("0.1 in")))
sketch7.addConstraint(Sketcher.Constraint("DistanceY", 2, 3, 1, 3, Q("1 in")))
sketch7.addConstraint(Sketcher.Constraint("DistanceY", 4, 3, 2, 3, Q("1 in")))
sketch7.addConstraint(Sketcher.Constraint("DistanceY", 6, 3, 4, 3, Q("1 in")))
sketch7.addConstraint(Sketcher.Constraint("DistanceX", 0, 3, 1, 3, Q("2.5 in")))
pocket6 = body.newObject("PartDesign::Pocket", "Pocket005")
pocket6.Profile = sketch7
pocket6.Type = "ThroughAll"
pocket6.Reversed = True

# Sketch on XZ plane
sketch8 = body.newObject("Sketcher::SketchObject", "Sketch007")
sketch8.AttachmentSupport = (doc.getObject("XZ_Plane"), [""])
sketch8.MapMode = "FlatFace"
sketch8.AttachmentOffset = App.Placement(V(0, 0, -0.125 * 25.4), App.Rotation())
sketch8.addGeometry(Part.Circle(V(-25.4, 50.8, 0), V(0, 0, 1), 1.27), False)
sketch8.addGeometry(Part.Circle(V(25.4, 50.8, 0), V(0, 0, 1), 1.27), False)
sketch8.addGeometry(Part.Circle(V(-25.4, 25.4, 0), V(0, 0, 1), 1.27), False)
sketch8.addGeometry(Part.Circle(V(25.4, 25.4, 0), V(0, 0, 1), 1.27), False)
sketch8.addGeometry(Part.Circle(V(-25.4, 0, 0), V(0, 0, 1), 1.27), False)
sketch8.addGeometry(Part.Circle(V(25.4, 0, 0), V(0, 0, 1), 1.27), False)
sketch8.addGeometry(Part.Circle(V(-25.4, -25.4, 0), V(0, 0, 1), 1.27), False)
sketch8.addGeometry(Part.Circle(V(25.4, -25.4, 0), V(0, 0, 1), 1.27), False)
sketch8.addGeometry(Part.Circle(V(-25.4, -50.8, 0), V(0, 0, 1), 1.27), False)
sketch8.addGeometry(Part.Circle(V(25.4, -50.8, 0), V(0, 0, 1), 1.27), False)
sketch8.addConstraint(Sketcher.Constraint("Equal", 0, 1))
sketch8.addConstraint(Sketcher.Constraint("Equal", 1, 2))
sketch8.addConstraint(Sketcher.Constraint("Equal", 2, 3))
sketch8.addConstraint(Sketcher.Constraint("Equal", 3, 4))
sketch8.addConstraint(Sketcher.Constraint("Equal", 4, 5))
sketch8.addConstraint(Sketcher.Constraint("Equal", 5, 6))
sketch8.addConstraint(Sketcher.Constraint("Equal", 6, 7))
sketch8.addConstraint(Sketcher.Constraint("Equal", 7, 8))
sketch8.addConstraint(Sketcher.Constraint("Equal", 8, 9))
sketch8.addConstraint(Sketcher.Constraint("Symmetric", 4, 3, 5, 3, -1, 1))
sketch8.addConstraint(Sketcher.Constraint("Symmetric", 3, 3, 6, 3, -1, 1))
sketch8.addConstraint(Sketcher.Constraint("Symmetric", 2, 3, 7, 3, -1, 1))
sketch8.addConstraint(Sketcher.Constraint("Symmetric", 1, 3, 8, 3, -1, 1))
sketch8.addConstraint(Sketcher.Constraint("Symmetric", 0, 3, 9, 3, -1, 1))
sketch8.addConstraint(Sketcher.Constraint("Symmetric", 0, 3, 1, 3, -2))
sketch8.addConstraint(Sketcher.Constraint("Symmetric", 2, 3, 3, 3, -2))
sketch8.addConstraint(Sketcher.Constraint("PointOnObject", 4, 3, -1))
sketch8.addConstraint(Sketcher.Constraint("Vertical", 0, 3, 2, 3))
sketch8.addConstraint(Sketcher.Constraint("Vertical", 2, 3, 4, 3))
sketch8.addConstraint(Sketcher.Constraint("Diameter", 0, Q("0.1 in")))
sketch8.addConstraint(Sketcher.Constraint("DistanceX", 0, 3, -1, 1, Q("1 in")))
sketch8.addConstraint(Sketcher.Constraint("DistanceY", -1, 1, 0, 3, Q("2 in")))
sketch8.addConstraint(Sketcher.Constraint("DistanceY", -1, 1, 2, 3, Q("1 in")))
pocket7 = body.newObject("PartDesign::Pocket", "Pocket006")
pocket7.Profile = sketch8
pocket7.Type = "ThroughAll"
pocket7.Reversed = True

doc.recompute()
